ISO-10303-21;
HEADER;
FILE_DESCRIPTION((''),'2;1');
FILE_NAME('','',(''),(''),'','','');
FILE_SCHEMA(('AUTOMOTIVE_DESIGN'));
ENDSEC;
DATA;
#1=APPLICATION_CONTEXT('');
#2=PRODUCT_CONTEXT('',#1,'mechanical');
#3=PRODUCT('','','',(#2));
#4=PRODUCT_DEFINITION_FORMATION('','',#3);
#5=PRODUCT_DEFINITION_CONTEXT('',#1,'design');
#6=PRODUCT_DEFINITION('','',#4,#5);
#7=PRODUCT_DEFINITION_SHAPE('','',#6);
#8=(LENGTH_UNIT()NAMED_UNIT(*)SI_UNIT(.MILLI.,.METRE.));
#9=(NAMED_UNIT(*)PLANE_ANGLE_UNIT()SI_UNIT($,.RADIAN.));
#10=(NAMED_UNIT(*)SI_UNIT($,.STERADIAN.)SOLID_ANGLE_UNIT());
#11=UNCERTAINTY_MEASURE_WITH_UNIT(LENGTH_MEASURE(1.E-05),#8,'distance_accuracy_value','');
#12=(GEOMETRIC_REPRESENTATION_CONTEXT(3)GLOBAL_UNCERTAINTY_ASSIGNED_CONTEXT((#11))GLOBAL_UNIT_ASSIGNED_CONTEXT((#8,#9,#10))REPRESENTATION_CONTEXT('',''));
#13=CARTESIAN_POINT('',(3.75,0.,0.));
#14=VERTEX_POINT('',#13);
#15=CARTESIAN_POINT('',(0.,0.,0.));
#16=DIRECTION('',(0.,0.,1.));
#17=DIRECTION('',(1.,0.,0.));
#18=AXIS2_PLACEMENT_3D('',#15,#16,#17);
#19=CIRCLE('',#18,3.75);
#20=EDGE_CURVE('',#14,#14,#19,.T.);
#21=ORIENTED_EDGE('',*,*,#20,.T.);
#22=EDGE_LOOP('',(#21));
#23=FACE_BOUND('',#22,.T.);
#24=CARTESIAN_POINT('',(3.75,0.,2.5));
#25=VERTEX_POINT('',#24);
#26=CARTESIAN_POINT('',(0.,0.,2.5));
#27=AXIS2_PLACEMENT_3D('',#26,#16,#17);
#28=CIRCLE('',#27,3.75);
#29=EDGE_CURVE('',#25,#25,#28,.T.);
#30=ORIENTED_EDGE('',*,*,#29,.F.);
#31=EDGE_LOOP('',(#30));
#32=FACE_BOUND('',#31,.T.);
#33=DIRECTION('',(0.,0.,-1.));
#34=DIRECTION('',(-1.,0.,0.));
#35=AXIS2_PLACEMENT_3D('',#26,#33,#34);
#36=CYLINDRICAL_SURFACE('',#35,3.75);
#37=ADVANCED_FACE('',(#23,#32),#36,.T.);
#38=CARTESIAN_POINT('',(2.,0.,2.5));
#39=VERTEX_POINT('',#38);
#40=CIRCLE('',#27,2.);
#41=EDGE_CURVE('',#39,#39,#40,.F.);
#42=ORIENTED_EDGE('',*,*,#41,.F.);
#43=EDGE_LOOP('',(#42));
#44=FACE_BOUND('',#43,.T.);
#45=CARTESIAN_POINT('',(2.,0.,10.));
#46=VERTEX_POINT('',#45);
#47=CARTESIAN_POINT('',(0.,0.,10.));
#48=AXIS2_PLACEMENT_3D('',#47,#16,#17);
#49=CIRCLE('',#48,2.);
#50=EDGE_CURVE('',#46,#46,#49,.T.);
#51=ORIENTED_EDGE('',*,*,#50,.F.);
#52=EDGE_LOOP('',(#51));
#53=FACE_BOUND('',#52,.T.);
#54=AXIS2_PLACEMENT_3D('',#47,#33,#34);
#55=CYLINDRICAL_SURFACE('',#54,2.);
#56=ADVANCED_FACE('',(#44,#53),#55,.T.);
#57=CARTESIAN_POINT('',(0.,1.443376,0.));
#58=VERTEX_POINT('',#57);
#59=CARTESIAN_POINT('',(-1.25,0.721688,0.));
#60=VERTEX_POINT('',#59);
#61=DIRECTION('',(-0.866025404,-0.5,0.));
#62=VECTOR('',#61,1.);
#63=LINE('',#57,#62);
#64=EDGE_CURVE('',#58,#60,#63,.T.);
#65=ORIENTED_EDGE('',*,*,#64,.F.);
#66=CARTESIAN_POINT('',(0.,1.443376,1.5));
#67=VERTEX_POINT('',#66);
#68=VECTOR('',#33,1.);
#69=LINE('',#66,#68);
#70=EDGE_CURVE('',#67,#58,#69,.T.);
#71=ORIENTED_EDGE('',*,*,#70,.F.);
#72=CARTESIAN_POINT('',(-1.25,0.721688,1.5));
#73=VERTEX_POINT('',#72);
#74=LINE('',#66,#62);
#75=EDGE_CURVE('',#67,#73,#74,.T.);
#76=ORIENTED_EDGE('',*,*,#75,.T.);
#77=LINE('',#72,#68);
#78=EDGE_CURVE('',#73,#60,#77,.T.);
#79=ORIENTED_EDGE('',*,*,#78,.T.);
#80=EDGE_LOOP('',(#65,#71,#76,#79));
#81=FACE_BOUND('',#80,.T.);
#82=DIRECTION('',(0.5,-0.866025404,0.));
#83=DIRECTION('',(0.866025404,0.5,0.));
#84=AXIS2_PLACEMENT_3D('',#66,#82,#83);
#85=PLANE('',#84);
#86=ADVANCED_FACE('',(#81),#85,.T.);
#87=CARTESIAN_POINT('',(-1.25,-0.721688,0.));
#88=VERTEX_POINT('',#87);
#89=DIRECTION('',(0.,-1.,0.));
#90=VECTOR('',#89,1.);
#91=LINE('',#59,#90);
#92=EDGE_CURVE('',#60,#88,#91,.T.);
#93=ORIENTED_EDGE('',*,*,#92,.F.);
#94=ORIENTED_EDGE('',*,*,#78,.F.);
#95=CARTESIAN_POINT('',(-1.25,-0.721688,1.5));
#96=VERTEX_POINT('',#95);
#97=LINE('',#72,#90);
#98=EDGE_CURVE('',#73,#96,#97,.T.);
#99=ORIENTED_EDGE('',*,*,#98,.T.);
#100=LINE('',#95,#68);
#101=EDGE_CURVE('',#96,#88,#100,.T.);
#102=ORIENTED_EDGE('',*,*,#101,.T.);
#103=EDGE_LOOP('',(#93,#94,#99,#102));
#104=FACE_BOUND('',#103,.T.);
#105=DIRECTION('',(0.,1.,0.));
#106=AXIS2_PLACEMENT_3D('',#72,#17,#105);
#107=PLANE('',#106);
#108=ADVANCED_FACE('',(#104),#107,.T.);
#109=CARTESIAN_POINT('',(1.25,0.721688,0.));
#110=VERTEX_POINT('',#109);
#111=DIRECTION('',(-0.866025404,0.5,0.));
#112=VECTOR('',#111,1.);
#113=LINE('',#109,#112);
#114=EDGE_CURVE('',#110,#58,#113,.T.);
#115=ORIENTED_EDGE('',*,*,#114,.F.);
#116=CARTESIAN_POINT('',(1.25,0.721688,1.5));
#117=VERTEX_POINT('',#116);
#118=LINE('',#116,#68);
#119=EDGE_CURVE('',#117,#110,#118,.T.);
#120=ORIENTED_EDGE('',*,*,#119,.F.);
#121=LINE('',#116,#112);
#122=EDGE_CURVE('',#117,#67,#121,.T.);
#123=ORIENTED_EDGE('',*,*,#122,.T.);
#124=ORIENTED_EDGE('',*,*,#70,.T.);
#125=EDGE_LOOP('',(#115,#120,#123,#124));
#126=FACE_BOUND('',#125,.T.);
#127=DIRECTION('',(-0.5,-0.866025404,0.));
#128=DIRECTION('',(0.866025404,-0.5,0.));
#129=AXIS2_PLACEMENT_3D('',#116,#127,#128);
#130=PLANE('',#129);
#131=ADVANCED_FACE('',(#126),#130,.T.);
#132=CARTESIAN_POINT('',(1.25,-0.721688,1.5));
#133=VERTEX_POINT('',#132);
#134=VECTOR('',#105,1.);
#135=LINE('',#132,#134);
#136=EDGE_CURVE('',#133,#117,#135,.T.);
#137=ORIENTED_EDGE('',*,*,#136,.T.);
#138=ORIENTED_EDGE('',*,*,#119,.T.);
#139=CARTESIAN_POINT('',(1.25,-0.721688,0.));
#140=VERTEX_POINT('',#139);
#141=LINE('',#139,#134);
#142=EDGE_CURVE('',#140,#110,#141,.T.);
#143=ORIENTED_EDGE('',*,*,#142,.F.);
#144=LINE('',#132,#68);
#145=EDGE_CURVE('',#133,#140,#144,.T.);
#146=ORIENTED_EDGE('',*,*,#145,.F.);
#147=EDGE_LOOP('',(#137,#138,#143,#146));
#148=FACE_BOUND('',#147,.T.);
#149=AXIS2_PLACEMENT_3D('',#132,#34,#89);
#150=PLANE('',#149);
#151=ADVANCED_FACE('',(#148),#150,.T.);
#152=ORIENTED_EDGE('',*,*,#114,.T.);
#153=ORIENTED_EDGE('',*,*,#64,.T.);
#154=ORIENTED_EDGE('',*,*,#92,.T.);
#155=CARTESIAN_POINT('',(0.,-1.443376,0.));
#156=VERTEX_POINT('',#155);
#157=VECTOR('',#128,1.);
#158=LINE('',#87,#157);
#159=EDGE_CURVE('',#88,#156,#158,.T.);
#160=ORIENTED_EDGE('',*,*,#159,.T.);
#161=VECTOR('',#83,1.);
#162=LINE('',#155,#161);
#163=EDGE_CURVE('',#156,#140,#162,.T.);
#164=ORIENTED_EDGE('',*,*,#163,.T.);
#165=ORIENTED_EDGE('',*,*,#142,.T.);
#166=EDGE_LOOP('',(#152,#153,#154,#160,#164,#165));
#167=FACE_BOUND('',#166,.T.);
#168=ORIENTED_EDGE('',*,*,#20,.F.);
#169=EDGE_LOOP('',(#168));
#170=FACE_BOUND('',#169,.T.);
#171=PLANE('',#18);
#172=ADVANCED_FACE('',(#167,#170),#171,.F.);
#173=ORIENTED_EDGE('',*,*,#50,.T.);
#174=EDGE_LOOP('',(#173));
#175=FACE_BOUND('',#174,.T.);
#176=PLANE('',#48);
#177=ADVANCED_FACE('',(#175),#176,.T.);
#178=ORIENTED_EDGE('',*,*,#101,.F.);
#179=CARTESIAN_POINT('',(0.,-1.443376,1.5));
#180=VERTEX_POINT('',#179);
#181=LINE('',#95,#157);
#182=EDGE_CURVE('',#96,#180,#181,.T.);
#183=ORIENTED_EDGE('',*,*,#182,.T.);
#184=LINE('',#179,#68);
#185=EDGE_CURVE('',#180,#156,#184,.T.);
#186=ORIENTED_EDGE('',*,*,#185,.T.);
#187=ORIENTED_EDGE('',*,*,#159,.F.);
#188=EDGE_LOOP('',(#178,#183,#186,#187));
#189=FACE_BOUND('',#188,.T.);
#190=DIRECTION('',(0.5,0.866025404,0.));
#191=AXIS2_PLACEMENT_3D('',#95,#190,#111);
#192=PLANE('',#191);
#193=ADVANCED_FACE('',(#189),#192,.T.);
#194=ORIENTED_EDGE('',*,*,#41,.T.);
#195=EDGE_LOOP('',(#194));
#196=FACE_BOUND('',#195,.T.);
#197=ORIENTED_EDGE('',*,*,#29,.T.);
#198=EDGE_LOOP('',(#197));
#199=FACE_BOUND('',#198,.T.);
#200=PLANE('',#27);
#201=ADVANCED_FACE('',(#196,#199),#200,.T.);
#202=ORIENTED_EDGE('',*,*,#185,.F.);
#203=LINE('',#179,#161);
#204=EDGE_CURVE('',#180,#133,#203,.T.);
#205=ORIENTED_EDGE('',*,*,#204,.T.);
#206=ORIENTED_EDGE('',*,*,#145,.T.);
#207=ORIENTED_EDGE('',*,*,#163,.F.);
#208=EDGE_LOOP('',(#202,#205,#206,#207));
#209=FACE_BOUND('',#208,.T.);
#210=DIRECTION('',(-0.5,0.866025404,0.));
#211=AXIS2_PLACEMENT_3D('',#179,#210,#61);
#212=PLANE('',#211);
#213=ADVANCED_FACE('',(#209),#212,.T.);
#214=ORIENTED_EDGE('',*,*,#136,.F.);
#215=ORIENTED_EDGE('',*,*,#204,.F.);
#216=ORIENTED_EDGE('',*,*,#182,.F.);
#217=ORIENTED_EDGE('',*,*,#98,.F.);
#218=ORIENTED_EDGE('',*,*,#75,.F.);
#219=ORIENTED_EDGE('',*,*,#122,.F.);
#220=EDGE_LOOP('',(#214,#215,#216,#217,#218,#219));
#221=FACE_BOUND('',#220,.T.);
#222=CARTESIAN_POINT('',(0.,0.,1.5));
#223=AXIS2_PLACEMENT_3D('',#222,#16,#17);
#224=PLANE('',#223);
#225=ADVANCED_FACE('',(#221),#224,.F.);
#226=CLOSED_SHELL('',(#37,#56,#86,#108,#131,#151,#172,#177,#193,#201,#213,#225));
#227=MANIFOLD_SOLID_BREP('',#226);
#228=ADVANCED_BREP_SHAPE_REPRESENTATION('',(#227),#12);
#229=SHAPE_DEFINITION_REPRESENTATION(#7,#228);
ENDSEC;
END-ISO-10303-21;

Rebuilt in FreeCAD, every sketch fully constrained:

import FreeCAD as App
import Part
import Sketcher

V = App.Vector
Q = App.Units.Quantity


def add_polygon(sketch, points):
    """Adds a closed chain of lines whose ends are joined by coincident constraints."""
    first, n = sketch.GeometryCount, len(points)
    for a, b in zip(points, points[1:] + points[:1]):
        sketch.addGeometry(Part.LineSegment(App.Vector(*a, 0), App.Vector(*b, 0)), False)
    for i in range(n):
        sketch.addConstraint(Sketcher.Constraint("Coincident", first + i, 2, first + (i + 1) % n, 1))

doc = App.newDocument("Part")
body = doc.addObject("PartDesign::Body", "Body")

# Sketch on XY plane
sketch1 = body.newObject("Sketcher::SketchObject", "Sketch")
sketch1.AttachmentSupport = (doc.getObject("XY_Plane"), [""])
sketch1.MapMode = "FlatFace"
sketch1.addGeometry(Part.Circle(V(0, 0, 0), V(0, 0, 1), 3.75), False)
sketch1.addConstraint([
    Sketcher.Constraint("Coincident", 0, 3, -1, 1),
    Sketcher.Constraint("Diameter", 0, 7.5),
])
pad1 = body.newObject("PartDesign::Pad", "Pad")
pad1.Profile = sketch1
pad1.Length = 2.5

# Sketch on XY plane
sketch2 = body.newObject("Sketcher::SketchObject", "Sketch001")
sketch2.AttachmentSupport = (doc.getObject("XY_Plane"), [""])
sketch2.MapMode = "FlatFace"
sketch2.addGeometry(Part.Circle(V(0, 0, 0), V(0, 0, 1), 2), False)
sketch2.addConstraint([
    Sketcher.Constraint("Coincident", 0, 3, -1, 1),
    Sketcher.Constraint("Diameter", 0, 4.0),
])
pad2 = body.newObject("PartDesign::Pad", "Pad001")
pad2.Profile = sketch2
pad2.Length = 10

# Sketch on XY plane
sketch3 = body.newObject("Sketcher::SketchObject", "Sketch002")
sketch3.AttachmentSupport = (doc.getObject("XY_Plane"), [""])
sketch3.MapMode = "FlatFace"
add_polygon(sketch3, [(0, -1.443376), (1.25, -0.721688), (1.25, 0.721688), (0, 1.443376), (-1.25, 0.721688), (-1.25, -0.721688)])  # lines 0-5
sketch3.addConstraint([
    Sketcher.Constraint("Vertical", 1),
    Sketcher.Constraint("Vertical", 4),
    Sketcher.Constraint("Symmetric", 0, 2, 3, 2, -1, 1),
    Sketcher.Constraint("Symmetric", 2, 2, 5, 2, -1, 1),
    Sketcher.Constraint("PointOnObject", 2, 2, -2),
    Sketcher.Constraint("Parallel", 2, 5),
    Sketcher.Constraint("Horizontal", 1, 2, 3, 2),
    Sketcher.Constraint("Angle", 0, Q("30 deg")),
    Sketcher.Constraint("DistanceX", 3, 2, 1, 2, 2.5),
    Sketcher.Constraint("DistanceY", 1, 1, 1, 2, 1.443376),
])
pocket1 = body.newObject("PartDesign::Pocket", "Pocket")
pocket1.Profile = sketch3
pocket1.Length = 1.5
pocket1.Reversed = True

doc.recompute()
